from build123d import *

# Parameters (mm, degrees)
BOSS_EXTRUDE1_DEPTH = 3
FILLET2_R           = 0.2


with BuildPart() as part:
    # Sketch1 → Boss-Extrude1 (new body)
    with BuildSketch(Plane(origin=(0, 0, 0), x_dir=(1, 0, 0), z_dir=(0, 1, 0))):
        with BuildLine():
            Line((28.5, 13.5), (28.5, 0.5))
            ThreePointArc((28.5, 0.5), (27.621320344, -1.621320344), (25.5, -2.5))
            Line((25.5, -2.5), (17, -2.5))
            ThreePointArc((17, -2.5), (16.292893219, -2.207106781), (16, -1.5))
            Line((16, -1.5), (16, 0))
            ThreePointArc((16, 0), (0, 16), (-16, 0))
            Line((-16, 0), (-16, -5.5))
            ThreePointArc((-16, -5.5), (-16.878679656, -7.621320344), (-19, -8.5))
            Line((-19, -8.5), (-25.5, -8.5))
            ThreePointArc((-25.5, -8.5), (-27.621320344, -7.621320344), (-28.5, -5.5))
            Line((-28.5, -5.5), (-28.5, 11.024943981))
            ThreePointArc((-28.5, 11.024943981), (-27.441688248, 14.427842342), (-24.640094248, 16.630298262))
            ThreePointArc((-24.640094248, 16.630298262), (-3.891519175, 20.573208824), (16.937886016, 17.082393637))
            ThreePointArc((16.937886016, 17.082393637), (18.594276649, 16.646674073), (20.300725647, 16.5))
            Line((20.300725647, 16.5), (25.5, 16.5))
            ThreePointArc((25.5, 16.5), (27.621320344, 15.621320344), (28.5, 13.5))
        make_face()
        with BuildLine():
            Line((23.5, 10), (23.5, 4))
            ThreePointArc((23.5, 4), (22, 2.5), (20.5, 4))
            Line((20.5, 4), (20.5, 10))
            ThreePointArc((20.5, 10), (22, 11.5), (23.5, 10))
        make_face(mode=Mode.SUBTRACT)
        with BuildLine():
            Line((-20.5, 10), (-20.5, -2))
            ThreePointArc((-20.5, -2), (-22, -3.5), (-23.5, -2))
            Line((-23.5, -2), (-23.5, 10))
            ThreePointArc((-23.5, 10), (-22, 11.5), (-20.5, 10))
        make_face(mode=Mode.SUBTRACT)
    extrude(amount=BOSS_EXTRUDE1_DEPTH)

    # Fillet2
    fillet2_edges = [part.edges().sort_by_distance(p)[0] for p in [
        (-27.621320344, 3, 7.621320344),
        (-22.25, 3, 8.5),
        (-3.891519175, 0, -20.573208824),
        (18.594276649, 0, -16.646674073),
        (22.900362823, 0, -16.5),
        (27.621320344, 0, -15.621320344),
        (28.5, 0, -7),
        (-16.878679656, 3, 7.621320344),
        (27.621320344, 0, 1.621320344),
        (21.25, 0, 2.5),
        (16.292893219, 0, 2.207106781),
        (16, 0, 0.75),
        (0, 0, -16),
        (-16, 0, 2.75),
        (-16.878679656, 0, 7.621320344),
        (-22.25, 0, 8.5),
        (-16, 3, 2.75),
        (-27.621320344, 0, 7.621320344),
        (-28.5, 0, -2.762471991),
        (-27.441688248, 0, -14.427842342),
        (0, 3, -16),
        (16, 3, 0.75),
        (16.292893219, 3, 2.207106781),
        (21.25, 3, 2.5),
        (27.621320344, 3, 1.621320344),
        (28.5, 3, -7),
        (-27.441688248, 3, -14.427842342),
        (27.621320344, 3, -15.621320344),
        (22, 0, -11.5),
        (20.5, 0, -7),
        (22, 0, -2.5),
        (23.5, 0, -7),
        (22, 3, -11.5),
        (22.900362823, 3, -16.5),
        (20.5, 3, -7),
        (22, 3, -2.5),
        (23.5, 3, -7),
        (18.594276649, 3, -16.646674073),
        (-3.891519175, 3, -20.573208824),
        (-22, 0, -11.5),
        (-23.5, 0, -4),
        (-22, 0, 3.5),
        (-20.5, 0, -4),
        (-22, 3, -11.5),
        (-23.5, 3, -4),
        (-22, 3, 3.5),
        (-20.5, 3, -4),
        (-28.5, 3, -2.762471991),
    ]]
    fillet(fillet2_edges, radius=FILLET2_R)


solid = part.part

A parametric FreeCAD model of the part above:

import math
import FreeCAD as App
import Part
import Sketcher


def edges_at(feature, points):
    """Names of the edges that pass closest to the given points."""
    edges = feature.Shape.Edges
    near = lambda p: min(range(len(edges)), key=lambda i: edges[i].distToShape(Part.Vertex(*p))[0])
    return sorted({f"Edge{near(p) + 1}" for p in points})

doc = App.newDocument("Part")
body = doc.addObject("PartDesign::Body", "Body")

sketch1 = body.newObject("Sketcher::SketchObject", "Sketch")
sketch1.AttachmentSupport = (doc.getObject("XZ_Plane"), [""])
sketch1.MapMode = "FlatFace"
sketch1.addGeometry(Part.LineSegment(App.Vector(28.5, -0.5, 0), App.Vector(28.5, -13.5, 0)), False)
sketch1.addGeometry(Part.ArcOfCircle(Part.Circle(App.Vector(25.5, -13.5, 0), App.Vector(0, 0, 1), 3), math.radians(-90), math.radians(0)), False)
sketch1.addGeometry(Part.LineSegment(App.Vector(25.5, -16.5, 0), App.Vector(20.3, -16.5, 0)), False)
sketch1.addGeometry(Part.ArcOfCircle(Part.Circle(App.Vector(20.3, -26.5, 0), App.Vector(0, 0, 1), 10), math.radians(90), math.radians(109.65)), False)
sketch1.addGeometry(Part.ArcOfCircle(Part.Circle(App.Vector(-3.2, 39.4, 0), App.Vector(0, 0, 1), 60), math.radians(-111), math.radians(-70)), False)
sketch1.addGeometry(Part.ArcOfCircle(Part.Circle(App.Vector(-22.5, -11, 0), App.Vector(0, 0, 1), 6), math.radians(-180), math.radians(-111)), False)
sketch1.addGeometry(Part.LineSegment(App.Vector(-28.5, -11, 0), App.Vector(-28.5, 5.5, 0)), False)
sketch1.addGeometry(Part.ArcOfCircle(Part.Circle(App.Vector(-25.5, 5.5, 0), App.Vector(0, 0, 1), 3), math.radians(90), math.radians(180)), False)
sketch1.addGeometry(Part.LineSegment(App.Vector(-25.5, 8.5, 0), App.Vector(-19, 8.5, 0)), False)
sketch1.addGeometry(Part.ArcOfCircle(Part.Circle(App.Vector(-19, 5.5, 0), App.Vector(0, 0, 1), 3), math.radians(0), math.radians(90)), False)
sketch1.addGeometry(Part.LineSegment(App.Vector(-16, 5.5, 0), App.Vector(-16, 0, 0)), False)
sketch1.addGeometry(Part.ArcOfCircle(Part.Circle(App.Vector(0, 0, 0), App.Vector(0, 0, 1), 16), math.radians(180), math.radians(360)), False)
sketch1.addGeometry(Part.LineSegment(App.Vector(16, 0, 0), App.Vector(16, 1.5, 0)), False)
sketch1.addGeometry(Part.ArcOfCircle(Part.Circle(App.Vector(17, 1.5, 0), App.Vector(0, 0, 1), 1), math.radians(90), math.radians(180)), False)
sketch1.addGeometry(Part.LineSegment(App.Vector(17, 2.5, 0), App.Vector(25.5, 2.5, 0)), False)
sketch1.addGeometry(Part.ArcOfCircle(Part.Circle(App.Vector(25.5, -0.5, 0), App.Vector(0, 0, 1), 3), math.radians(0), math.radians(90)), False)
sketch1.addGeometry(Part.LineSegment(App.Vector(23.5, -10, 0), App.Vector(23.5, -4, 0)), False)
sketch1.addGeometry(Part.ArcOfCircle(Part.Circle(App.Vector(22, -4, 0), App.Vector(0, 0, 1), 1.5), math.radians(0), math.radians(180)), False)
sketch1.addGeometry(Part.LineSegment(App.Vector(20.5, -4, 0), App.Vector(20.5, -10, 0)), False)
sketch1.addGeometry(Part.ArcOfCircle(Part.Circle(App.Vector(22, -10, 0), App.Vector(0, 0, 1), 1.5), math.radians(180), math.radians(360)), False)
sketch1.addGeometry(Part.LineSegment(App.Vector(-20.5, -10, 0), App.Vector(-20.5, 2, 0)), False)
sketch1.addGeometry(Part.ArcOfCircle(Part.Circle(App.Vector(-22, 2, 0), App.Vector(0, 0, 1), 1.5), math.radians(0), math.radians(180)), False)
sketch1.addGeometry(Part.LineSegment(App.Vector(-23.5, 2, 0), App.Vector(-23.5, -10, 0)), False)
sketch1.addGeometry(Part.ArcOfCircle(Part.Circle(App.Vector(-22, -10, 0), App.Vector(0, 0, 1), 1.5), math.radians(180), math.radians(360)), False)
sketch1.addConstraint(Sketcher.Constraint("Tangent", 0, 2, 1, 2))
sketch1.addConstraint(Sketcher.Constraint("Tangent", 1, 1, 2, 1))
sketch1.addConstraint(Sketcher.Constraint("Tangent", 2, 2, 3, 1))
sketch1.addConstraint(Sketcher.Constraint("Tangent", 3, 2, 4, 2))
sketch1.addConstraint(Sketcher.Constraint("Tangent", 4, 1, 5, 2))
sketch1.addConstraint(Sketcher.Constraint("Tangent", 5, 1, 6, 1))
sketch1.addConstraint(Sketcher.Constraint("Tangent", 6, 2, 7, 2))
sketch1.addConstraint(Sketcher.Constraint("Tangent", 7, 1, 8, 1))
sketch1.addConstraint(Sketcher.Constraint("Tangent", 8, 2, 9, 2))
sketch1.addConstraint(Sketcher.Constraint("Tangent", 9, 1, 10, 1))
sketch1.addConstraint(Sketcher.Constraint("Tangent", 10, 2, 11, 1))
sketch1.addConstraint(Sketcher.Constraint("Tangent", 11, 2, 12, 1))
sketch1.addConstraint(Sketcher.Constraint("Tangent", 12, 2, 13, 2))
sketch1.addConstraint(Sketcher.Constraint("Tangent", 13, 1, 14, 1))
sketch1.addConstraint(Sketcher.Constraint("Tangent", 14, 2, 15, 2))
sketch1.addConstraint(Sketcher.Constraint("Tangent", 15, 1, 0, 1))
sketch1.addConstraint(Sketcher.Constraint("Tangent", 16, 2, 17, 1))
sketch1.addConstraint(Sketcher.Constraint("Tangent", 17, 2, 18, 1))
sketch1.addConstraint(Sketcher.Constraint("Tangent", 18, 2, 19, 1))
sketch1.addConstraint(Sketcher.Constraint("Tangent", 19, 2, 16, 1))
sketch1.addConstraint(Sketcher.Constraint("Tangent", 20, 2, 21, 1))
sketch1.addConstraint(Sketcher.Constraint("Tangent", 21, 2, 22, 1))
sketch1.addConstraint(Sketcher.Constraint("Tangent", 22, 2, 23, 1))
sketch1.addConstraint(Sketcher.Constraint("Tangent", 23, 2, 20, 1))
sketch1.addConstraint(Sketcher.Constraint("Vertical", 0))
sketch1.addConstraint(Sketcher.Constraint("Horizontal", 2))
sketch1.addConstraint(Sketcher.Constraint("Vertical", 6))
sketch1.addConstraint(Sketcher.Constraint("Horizontal", 8))
sketch1.addConstraint(Sketcher.Constraint("Vertical", 10))
sketch1.addConstraint(Sketcher.Constraint("Vertical", 12))
sketch1.addConstraint(Sketcher.Constraint("Horizontal", 14))
sketch1.addConstraint(Sketcher.Constraint("Vertical", 16))
sketch1.addConstraint(Sketcher.Constraint("Vertical", 18))
sketch1.addConstraint(Sketcher.Constraint("Vertical", 20))
sketch1.addConstraint(Sketcher.Constraint("Vertical", 22))
sketch1.addConstraint(Sketcher.Constraint("Coincident", 11, 3, -1, 1))
sketch1.addConstraint(Sketcher.Constraint("Equal", 1, 7))
sketch1.addConstraint(Sketcher.Constraint("Equal", 7, 9))
sketch1.addConstraint(Sketcher.Constraint("Equal", 9, 15))
sketch1.addConstraint(Sketcher.Constraint("Equal", 19, 21))
sketch1.addConstraint(Sketcher.Constraint("Symmetric", 19, 3, 23, 3, -2))
sketch1.addConstraint(Sketcher.Constraint("Radius", 1, 3.0))
sketch1.addConstraint(Sketcher.Constraint("Radius", 3, 10.0))
sketch1.addConstraint(Sketcher.Constraint("Radius", 4, 60.0))
sketch1.addConstraint(Sketcher.Constraint("Radius", 5, 6.0))
sketch1.addConstraint(Sketcher.Constraint("Radius", 11, 16.0))
sketch1.addConstraint(Sketcher.Constraint("Radius", 13, 1.0))
sketch1.addConstraint(Sketcher.Constraint("Radius", 17, 1.5))
sketch1.addConstraint(Sketcher.Constraint("DistanceY", 0, 2, 0, 1, 13.0))
sketch1.addConstraint(Sketcher.Constraint("DistanceY", 16, 1, 16, 2, 6.0))
sketch1.addConstraint(Sketcher.Constraint("DistanceY", 20, 1, 20, 2, 12.0))
sketch1.addConstraint(Sketcher.Constraint("DistanceX", 8, 1, 8, 2, 6.5))
sketch1.addConstraint(Sketcher.Constraint("DistanceX", 14, 1, 14, 2, 8.5))
sketch1.addConstraint(Sketcher.Constraint("DistanceY", 10, 2, 10, 1, 5.5))
sketch1.addConstraint(Sketcher.Constraint("DistanceY", 12, 1, 12, 2, 1.5))
sketch1.addConstraint(Sketcher.Constraint("DistanceX", -1, 1, 17, 3, 22.0))
sketch1.addConstraint(Sketcher.Constraint("DistanceY", 17, 3, -1, 1, 4.0))
sketch1.addConstraint(Sketcher.Constraint("DistanceY", 4, 1, -1, 1, 16.630298))
sketch1.addConstraint(Sketcher.Constraint("DistanceX", 2, 2, 2, 1, 5.199274))
pad1 = body.newObject("PartDesign::Pad", "Pad")
pad1.Profile = sketch1
pad1.Length = 3
pad1.Reversed = True
doc.recompute()

fillet = body.newObject("PartDesign::Fillet", "Fillet")
fillet.Base = (pad1, edges_at(pad1, [
    (-27.621, 3, 7.621),
    (-22.25, 3, 8.5),
    (-3.892, 0, -20.573),
    (18.594, 0, -16.647),
    (22.9, 0, -16.5),
    (27.621, 0, -15.621),
    (28.5, 0, -7),
    (-16.879, 3, 7.621),
    (27.621, 0, 1.621),
    (21.25, 0, 2.5),
    (16.293, 0, 2.207),
    (16, 0, 0.75),
    (0, 0, -16),
    (-16, 0, 2.75),
    (-16.879, 0, 7.621),
    (-22.25, 0, 8.5),
    (-16, 3, 2.75),
    (-27.621, 0, 7.621),
    (-28.5, 0, -2.762),
    (-27.442, 0, -14.428),
    (0, 3, -16),
    (16, 3, 0.75),
    (16.293, 3, 2.207),
    (21.25, 3, 2.5),
    (27.621, 3, 1.621),
    (28.5, 3, -7),
    (-27.442, 3, -14.428),
    (27.621, 3, -15.621),
    (22, 0, -11.5),
    (20.5, 0, -7),
    (22, 0, -2.5),
    (23.5, 0, -7),
    (22, 3, -11.5),
    (22.9, 3, -16.5),
    (20.5, 3, -7),
    (22, 3, -2.5),
    (23.5, 3, -7),
    (18.594, 3, -16.647),
    (-3.892, 3, -20.573),
    (-22, 0, -11.5),
    (-23.5, 0, -4),
    (-22, 0, 3.5),
    (-20.5, 0, -4),
    (-22, 3, -11.5),
    (-23.5, 3, -4),
    (-22, 3, 3.5),
    (-20.5, 3, -4),
    (-28.5, 3, -2.762),
]))
fillet.Radius = 0.2

doc.recompute()
